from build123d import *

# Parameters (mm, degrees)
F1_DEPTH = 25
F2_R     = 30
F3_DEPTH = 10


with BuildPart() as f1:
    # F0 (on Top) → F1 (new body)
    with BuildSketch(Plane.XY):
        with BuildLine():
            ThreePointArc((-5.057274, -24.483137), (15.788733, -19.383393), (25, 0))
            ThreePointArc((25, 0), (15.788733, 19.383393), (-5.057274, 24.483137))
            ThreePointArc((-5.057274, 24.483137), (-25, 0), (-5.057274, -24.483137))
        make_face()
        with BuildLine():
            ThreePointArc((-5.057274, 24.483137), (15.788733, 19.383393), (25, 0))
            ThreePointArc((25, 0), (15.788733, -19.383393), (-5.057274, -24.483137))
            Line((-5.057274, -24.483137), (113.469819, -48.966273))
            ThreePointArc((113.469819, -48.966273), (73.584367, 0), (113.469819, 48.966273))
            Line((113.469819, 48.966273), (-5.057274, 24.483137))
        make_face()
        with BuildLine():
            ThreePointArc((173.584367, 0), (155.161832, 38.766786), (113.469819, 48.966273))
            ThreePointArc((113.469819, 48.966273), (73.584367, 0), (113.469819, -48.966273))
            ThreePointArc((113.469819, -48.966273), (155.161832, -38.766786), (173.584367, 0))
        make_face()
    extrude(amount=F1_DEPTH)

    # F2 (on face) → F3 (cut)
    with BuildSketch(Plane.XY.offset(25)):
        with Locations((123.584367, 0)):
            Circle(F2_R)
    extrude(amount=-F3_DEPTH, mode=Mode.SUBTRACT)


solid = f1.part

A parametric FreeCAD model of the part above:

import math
import FreeCAD as App
import Part
import Sketcher
from FreeCAD import Vector
Q = App.Units.Quantity

doc = App.newDocument("Part")
body = doc.addObject("PartDesign::Body", "Body")

sketch1 = body.newObject("Sketcher::SketchObject", "Sketch")
sketch1.AttachmentSupport = (doc.getObject("XY_Plane"), [""])
sketch1.MapMode = "FlatFace"
sketch1.addGeometry(Part.ArcOfCircle(Part.Circle(Vector(0, 0, 0), Vector(0, 0, 1), 25), math.radians(102), math.radians(258)), False)
sketch1.addGeometry(Part.LineSegment(Vector(-5, -24, 0), Vector(113, -49, 0)), False)
sketch1.addGeometry(Part.ArcOfCircle(Part.Circle(Vector(124, 0, 0), Vector(0, 0, 1), 50), math.radians(-102), math.radians(0)), False)
sketch1.addGeometry(Part.ArcOfCircle(Part.Circle(Vector(124, 0, 0), Vector(0, 0, 1), 50), math.radians(0), math.radians(102)), False)
sketch1.addGeometry(Part.LineSegment(Vector(113, 49, 0), Vector(-5, 24, 0)), False)
sketch1.addConstraint(Sketcher.Constraint("Tangent", 0, 2, 1, 1))
sketch1.addConstraint(Sketcher.Constraint("Tangent", 1, 2, 2, 1))
sketch1.addConstraint(Sketcher.Constraint("Tangent", 2, 2, 3, 1))
sketch1.addConstraint(Sketcher.Constraint("Tangent", 3, 2, 4, 1))
sketch1.addConstraint(Sketcher.Constraint("Tangent", 4, 2, 0, 1))
sketch1.addConstraint(Sketcher.Constraint("Coincident", 0, 3, -1, 1))
sketch1.addConstraint(Sketcher.Constraint("Equal", 2, 3))
sketch1.addConstraint(Sketcher.Constraint("PointOnObject", 2, 3, -1))
sketch1.addConstraint(Sketcher.Constraint("PointOnObject", 2, 2, -1))
sketch1.addConstraint(Sketcher.Constraint("Radius", 0, Q("25 mm")))
sketch1.addConstraint(Sketcher.Constraint("Radius", 2, Q("50 mm")))
sketch1.addConstraint(Sketcher.Constraint("DistanceX", -1, 1, 1, 2, Q("113.469819 mm")))
pad1 = body.newObject("PartDesign::Pad", "Pad")
pad1.Profile = sketch1
pad1.Length = 25

sketch2 = body.newObject("Sketcher::SketchObject", "Sketch001")
sketch2.AttachmentSupport = (doc.getObject("XY_Plane"), [""])
sketch2.MapMode = "FlatFace"
sketch2.AttachmentOffset = App.Placement(Vector(0, 0, 25), App.Rotation())
sketch2.addGeometry(Part.Circle(Vector(124, 0, 0), Vector(0, 0, 1), 30), False)
sketch2.addConstraint(Sketcher.Constraint("PointOnObject", 0, 3, -1))
sketch2.addConstraint(Sketcher.Constraint("Diameter", 0, Q("60 mm")))
sketch2.addConstraint(Sketcher.Constraint("DistanceX", -1, 1, 0, 3, Q("123.584367 mm")))
pocket1 = body.newObject("PartDesign::Pocket", "Pocket")
pocket1.Profile = sketch2
pocket1.Length = 10

doc.recompute()
